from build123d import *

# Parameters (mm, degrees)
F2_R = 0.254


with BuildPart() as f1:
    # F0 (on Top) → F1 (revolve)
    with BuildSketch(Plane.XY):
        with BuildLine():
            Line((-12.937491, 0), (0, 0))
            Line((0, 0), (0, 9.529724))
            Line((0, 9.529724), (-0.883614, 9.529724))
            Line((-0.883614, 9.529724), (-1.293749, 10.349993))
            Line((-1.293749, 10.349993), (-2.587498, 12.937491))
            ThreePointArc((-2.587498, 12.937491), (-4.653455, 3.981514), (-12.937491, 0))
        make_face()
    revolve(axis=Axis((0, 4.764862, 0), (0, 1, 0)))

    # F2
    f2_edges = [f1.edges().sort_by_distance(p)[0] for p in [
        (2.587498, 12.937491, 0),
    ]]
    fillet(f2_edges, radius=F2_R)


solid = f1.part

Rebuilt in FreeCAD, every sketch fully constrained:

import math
import FreeCAD as App
import Part
import Sketcher
Q = App.Units.Quantity


def edges_at(feature, points):
    """Names of the edges that pass closest to the given points."""
    edges = feature.Shape.Edges
    near = lambda p: min(range(len(edges)), key=lambda i: edges[i].distToShape(Part.Vertex(*p))[0])
    return sorted({f"Edge{near(p) + 1}" for p in points})

doc = App.newDocument("Part")
body = doc.addObject("PartDesign::Body", "Body")

# Sketch on XY plane
sketch1 = body.newObject("Sketcher::SketchObject", "Sketch")
sketch1.AttachmentSupport = (doc.getObject("XY_Plane"), [""])
sketch1.MapMode = "FlatFace"
sketch1.addGeometry(Part.LineSegment(App.Vector(-12.9, 0, 0), App.Vector(0, 0, 0)), False)
sketch1.addGeometry(Part.LineSegment(App.Vector(0, 0, 0), App.Vector(0, 9.5, 0)), False)
sketch1.addGeometry(Part.LineSegment(App.Vector(0, 9.5, 0), App.Vector(-0.9, 9.5, 0)), False)
sketch1.addGeometry(Part.LineSegment(App.Vector(-0.9, 9.5, 0), App.Vector(-1.3, 10.3, 0)), False)
sketch1.addGeometry(Part.LineSegment(App.Vector(-1.3, 10.3, 0), App.Vector(-2.6, 12.9, 0)), False)
sketch1.addGeometry(Part.ArcOfCircle(Part.Circle(App.Vector(-12.9, 10.6, 0), App.Vector(0, 0, 1), 10.6), math.radians(-90), math.radians(13)), False)
sketch1.addConstraint(Sketcher.Constraint("Coincident", 0, 2, 1, 1))
sketch1.addConstraint(Sketcher.Constraint("Coincident", 1, 2, 2, 1))
sketch1.addConstraint(Sketcher.Constraint("Coincident", 2, 2, 3, 1))
sketch1.addConstraint(Sketcher.Constraint("Coincident", 3, 2, 4, 1))
sketch1.addConstraint(Sketcher.Constraint("Coincident", 4, 2, 5, 2))
sketch1.addConstraint(Sketcher.Constraint("Tangent", 5, 1, 0, 1))
sketch1.addConstraint(Sketcher.Constraint("Horizontal", 0))
sketch1.addConstraint(Sketcher.Constraint("Vertical", 1))
sketch1.addConstraint(Sketcher.Constraint("Horizontal", 2))
sketch1.addConstraint(Sketcher.Constraint("Coincident", 0, 2, -1, 1))
sketch1.addConstraint(Sketcher.Constraint("Parallel", 3, 4))
sketch1.addConstraint(Sketcher.Constraint("Radius", 5, Q("10.608744 mm")))
sketch1.addConstraint(Sketcher.Constraint("DistanceX", 0, 1, 0, 2, Q("12.937491 mm")))
sketch1.addConstraint(Sketcher.Constraint("DistanceX", 4, 2, -1, 1, Q("2.587498 mm")))
sketch1.addConstraint(Sketcher.Constraint("DistanceY", 3, 2, 4, 2, Q("2.587498 mm")))
sketch1.addConstraint(Sketcher.Constraint("Distance", 3, Q("0.917089 mm")))
sketch1.addConstraint(Sketcher.Constraint("Distance", 4, Q("2.892911 mm")))
revolution = body.newObject("PartDesign::Revolution", "Revolution")
revolution.Profile = sketch1
revolution.ReferenceAxis = (sketch1, ["V_Axis"])
revolution.Angle = 360
doc.recompute()

fillet = body.newObject("PartDesign::Fillet", "Fillet")
fillet.Base = (revolution, edges_at(revolution, [(2.587, 12.937, 0)]))
fillet.Radius = Q("0.01 in")

doc.recompute()
